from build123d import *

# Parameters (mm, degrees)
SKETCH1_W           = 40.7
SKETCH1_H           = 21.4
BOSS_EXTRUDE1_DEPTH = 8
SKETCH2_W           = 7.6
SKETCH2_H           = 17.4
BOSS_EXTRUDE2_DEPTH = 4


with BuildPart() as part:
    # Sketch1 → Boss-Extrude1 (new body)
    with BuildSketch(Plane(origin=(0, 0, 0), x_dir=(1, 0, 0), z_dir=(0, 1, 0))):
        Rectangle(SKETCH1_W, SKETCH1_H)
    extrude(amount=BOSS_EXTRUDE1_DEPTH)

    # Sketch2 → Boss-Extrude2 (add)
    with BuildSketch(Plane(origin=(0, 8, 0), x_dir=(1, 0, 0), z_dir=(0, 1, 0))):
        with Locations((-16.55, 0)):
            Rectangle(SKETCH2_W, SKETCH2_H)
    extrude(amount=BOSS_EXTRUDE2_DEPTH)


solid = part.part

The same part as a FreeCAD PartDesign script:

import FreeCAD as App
import Part
import Sketcher
from FreeCAD import Vector

doc = App.newDocument("Part")
body = doc.addObject("PartDesign::Body", "Body")

sketch1 = body.newObject("Sketcher::SketchObject", "Sketch")
sketch1.AttachmentSupport = (doc.getObject("XZ_Plane"), [""])
sketch1.MapMode = "FlatFace"
sketch1.addGeometry([
    Part.LineSegment(Vector(-20, -11, 0), Vector(-20, 11, 0)),
    Part.LineSegment(Vector(-20, 11, 0), Vector(20, 11, 0)),
    Part.LineSegment(Vector(20, 11, 0), Vector(20, -11, 0)),
    Part.LineSegment(Vector(20, -11, 0), Vector(-20, -11, 0)),
], False)
sketch1.addConstraint([
    Sketcher.Constraint("Coincident", 0, 2, 1, 1),
    Sketcher.Constraint("Coincident", 1, 2, 2, 1),
    Sketcher.Constraint("Coincident", 2, 2, 3, 1),
    Sketcher.Constraint("Coincident", 3, 2, 0, 1),
    Sketcher.Constraint("Vertical", 0),
    Sketcher.Constraint("Horizontal", 1),
    Sketcher.Constraint("Vertical", 2),
    Sketcher.Constraint("Horizontal", 3),
    Sketcher.Constraint("Symmetric", 0, 2, 2, 2, -1, 1),
    Sketcher.Constraint("DistanceX", 1, 1, 1, 2, 40.7),
    Sketcher.Constraint("DistanceY", 0, 1, 0, 2, 21.4),
])
pad1 = body.newObject("PartDesign::Pad", "Pad")
pad1.Profile = sketch1
pad1.Length = 8
pad1.Reversed = True

sketch2 = body.newObject("Sketcher::SketchObject", "Sketch001")
sketch2.AttachmentSupport = (doc.getObject("XZ_Plane"), [""])
sketch2.MapMode = "FlatFace"
sketch2.AttachmentOffset = App.Placement(Vector(0, 0, -8), App.Rotation())
sketch2.addGeometry([
    Part.LineSegment(Vector(-20, -9, 0), Vector(-20, 9, 0)),
    Part.LineSegment(Vector(-20, 9, 0), Vector(-13, 9, 0)),
    Part.LineSegment(Vector(-13, 9, 0), Vector(-13, -9, 0)),
    Part.LineSegment(Vector(-13, -9, 0), Vector(-20, -9, 0)),
], False)
sketch2.addConstraint([
    Sketcher.Constraint("Coincident", 0, 2, 1, 1),
    Sketcher.Constraint("Coincident", 1, 2, 2, 1),
    Sketcher.Constraint("Coincident", 2, 2, 3, 1),
    Sketcher.Constraint("Coincident", 3, 2, 0, 1),
    Sketcher.Constraint("Vertical", 0),
    Sketcher.Constraint("Horizontal", 1),
    Sketcher.Constraint("Vertical", 2),
    Sketcher.Constraint("Horizontal", 3),
    Sketcher.Constraint("DistanceX", 1, 1, 1, 2, 7.6),
    Sketcher.Constraint("DistanceY", 0, 1, 0, 2, 17.4),
    Sketcher.Constraint("DistanceY", -1, 1, 0, 2, 8.7),
    Sketcher.Constraint("DistanceX", 0, 2, -1, 1, 20.35),
])
pad2 = body.newObject("PartDesign::Pad", "Pad001")
pad2.Profile = sketch2
pad2.Length = 4
pad2.Reversed = True

doc.recompute()
